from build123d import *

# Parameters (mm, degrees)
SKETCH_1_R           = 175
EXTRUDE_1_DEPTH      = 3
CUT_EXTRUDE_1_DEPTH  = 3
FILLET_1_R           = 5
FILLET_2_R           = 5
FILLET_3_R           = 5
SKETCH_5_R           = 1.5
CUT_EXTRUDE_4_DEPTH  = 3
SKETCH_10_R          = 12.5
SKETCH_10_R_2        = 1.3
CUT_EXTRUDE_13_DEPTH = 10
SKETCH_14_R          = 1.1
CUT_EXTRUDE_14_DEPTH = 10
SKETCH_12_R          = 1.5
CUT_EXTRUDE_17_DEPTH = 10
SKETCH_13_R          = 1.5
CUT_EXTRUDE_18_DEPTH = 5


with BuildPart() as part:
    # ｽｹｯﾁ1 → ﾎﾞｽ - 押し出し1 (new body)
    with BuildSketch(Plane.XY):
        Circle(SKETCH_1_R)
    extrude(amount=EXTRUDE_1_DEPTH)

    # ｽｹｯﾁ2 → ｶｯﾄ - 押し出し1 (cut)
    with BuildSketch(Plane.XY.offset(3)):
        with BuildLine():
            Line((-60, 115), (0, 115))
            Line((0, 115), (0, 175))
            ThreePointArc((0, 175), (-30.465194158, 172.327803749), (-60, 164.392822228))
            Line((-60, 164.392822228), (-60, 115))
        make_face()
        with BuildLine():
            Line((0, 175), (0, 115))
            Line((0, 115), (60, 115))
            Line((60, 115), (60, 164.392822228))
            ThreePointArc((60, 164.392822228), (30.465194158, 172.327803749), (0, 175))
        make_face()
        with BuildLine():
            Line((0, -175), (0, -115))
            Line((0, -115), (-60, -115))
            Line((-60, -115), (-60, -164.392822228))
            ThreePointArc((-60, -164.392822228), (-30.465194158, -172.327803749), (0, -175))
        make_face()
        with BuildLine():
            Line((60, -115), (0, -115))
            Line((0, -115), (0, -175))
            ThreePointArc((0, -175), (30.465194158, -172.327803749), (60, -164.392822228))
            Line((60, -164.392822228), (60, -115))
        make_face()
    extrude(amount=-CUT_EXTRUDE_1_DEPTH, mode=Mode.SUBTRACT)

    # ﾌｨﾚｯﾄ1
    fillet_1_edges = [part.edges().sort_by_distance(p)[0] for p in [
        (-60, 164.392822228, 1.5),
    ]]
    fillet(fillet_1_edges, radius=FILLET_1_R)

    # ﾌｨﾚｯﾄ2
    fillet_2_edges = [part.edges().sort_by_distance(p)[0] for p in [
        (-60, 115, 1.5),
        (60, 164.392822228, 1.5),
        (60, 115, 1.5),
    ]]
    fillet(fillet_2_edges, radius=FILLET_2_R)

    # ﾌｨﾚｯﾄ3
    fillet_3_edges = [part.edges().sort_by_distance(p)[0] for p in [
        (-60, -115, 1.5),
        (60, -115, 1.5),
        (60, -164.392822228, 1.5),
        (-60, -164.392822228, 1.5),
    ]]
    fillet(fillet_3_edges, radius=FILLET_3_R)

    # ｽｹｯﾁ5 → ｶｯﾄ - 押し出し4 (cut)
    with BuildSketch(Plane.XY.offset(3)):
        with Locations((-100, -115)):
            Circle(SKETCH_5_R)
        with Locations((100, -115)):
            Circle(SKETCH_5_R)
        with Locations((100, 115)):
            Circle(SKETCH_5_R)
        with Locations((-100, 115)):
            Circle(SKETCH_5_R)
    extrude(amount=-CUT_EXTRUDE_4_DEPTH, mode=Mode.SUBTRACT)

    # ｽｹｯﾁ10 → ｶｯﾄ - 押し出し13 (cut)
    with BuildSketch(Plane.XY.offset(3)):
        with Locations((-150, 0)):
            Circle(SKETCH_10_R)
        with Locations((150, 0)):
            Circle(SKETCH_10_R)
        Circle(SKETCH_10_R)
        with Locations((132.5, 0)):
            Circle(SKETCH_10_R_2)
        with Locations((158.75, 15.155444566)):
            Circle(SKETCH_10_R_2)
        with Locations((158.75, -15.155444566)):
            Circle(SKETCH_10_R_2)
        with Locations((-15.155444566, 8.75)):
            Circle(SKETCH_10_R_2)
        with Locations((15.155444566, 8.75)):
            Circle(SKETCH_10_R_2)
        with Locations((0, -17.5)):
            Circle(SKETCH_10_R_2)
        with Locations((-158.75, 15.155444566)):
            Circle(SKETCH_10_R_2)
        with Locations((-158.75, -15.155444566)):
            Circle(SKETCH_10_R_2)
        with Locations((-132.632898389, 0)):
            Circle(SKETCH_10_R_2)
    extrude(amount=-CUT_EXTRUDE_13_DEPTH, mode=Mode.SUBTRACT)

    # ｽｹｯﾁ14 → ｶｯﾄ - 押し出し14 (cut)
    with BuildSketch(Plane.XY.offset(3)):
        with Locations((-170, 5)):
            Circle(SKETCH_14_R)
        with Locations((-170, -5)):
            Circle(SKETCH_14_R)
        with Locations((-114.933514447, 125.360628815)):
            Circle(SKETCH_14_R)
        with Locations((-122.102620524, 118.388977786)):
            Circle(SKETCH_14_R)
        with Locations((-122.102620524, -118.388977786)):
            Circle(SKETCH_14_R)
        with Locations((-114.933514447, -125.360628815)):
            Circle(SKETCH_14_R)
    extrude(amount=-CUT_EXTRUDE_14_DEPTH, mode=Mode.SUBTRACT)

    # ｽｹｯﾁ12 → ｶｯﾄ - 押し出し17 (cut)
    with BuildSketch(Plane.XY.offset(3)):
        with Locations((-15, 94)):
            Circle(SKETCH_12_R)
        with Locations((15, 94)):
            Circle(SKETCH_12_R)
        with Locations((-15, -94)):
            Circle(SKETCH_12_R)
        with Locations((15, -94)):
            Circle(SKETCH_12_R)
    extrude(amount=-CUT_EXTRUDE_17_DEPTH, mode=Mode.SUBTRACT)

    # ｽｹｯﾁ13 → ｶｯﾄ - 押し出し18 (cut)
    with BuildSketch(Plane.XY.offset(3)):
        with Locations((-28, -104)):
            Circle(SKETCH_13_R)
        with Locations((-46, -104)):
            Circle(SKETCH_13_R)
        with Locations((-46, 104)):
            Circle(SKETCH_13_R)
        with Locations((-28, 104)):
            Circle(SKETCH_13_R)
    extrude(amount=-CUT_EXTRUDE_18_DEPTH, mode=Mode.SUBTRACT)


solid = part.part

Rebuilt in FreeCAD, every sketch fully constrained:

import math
import FreeCAD as App
import Part
import Sketcher

V = App.Vector
Q = App.Units.Quantity


def edges_at(feature, points):
    """Names of the edges that pass closest to the given points."""
    edges = feature.Shape.Edges
    near = lambda p: min(range(len(edges)), key=lambda i: edges[i].distToShape(Part.Vertex(*p))[0])
    return sorted({f"Edge{near(p) + 1}" for p in points})

doc = App.newDocument("Part")
body = doc.addObject("PartDesign::Body", "Body")

sketch1 = doc.addObject("Sketcher::SketchObject", "Sketch")
body.addObject(sketch1)
sketch1.AttachmentSupport = (doc.XY_Plane, [""])
sketch1.MapMode = "FlatFace"
sketch1.addGeometry(Part.Circle(V(0, 0, 0), V(0, 0, 1), 175), False)
sketch1.addConstraint([
    Sketcher.Constraint("Coincident", 0, 3, -1, 1),
    Sketcher.Constraint("Diameter", 0, Q("350 mm")),
])
pad1 = doc.addObject("PartDesign::Pad", "Pad")
body.addObject(pad1)
pad1.Profile = sketch1
pad1.Length = 3

sketch2 = doc.addObject("Sketcher::SketchObject", "Sketch001")
body.addObject(sketch2)
sketch2.AttachmentSupport = (doc.XY_Plane, [""])
sketch2.MapMode = "FlatFace"
sketch2.AttachmentOffset = App.Placement(V(0, 0, 3), App.Rotation())
sketch2.addGeometry([
    Part.LineSegment(V(-60, 115, 0), V(60, 115, 0)),
    Part.LineSegment(V(60, 115, 0), V(60, 164.392822, 0)),
    Part.ArcOfCircle(Part.Circle(V(0, 0, 0), V(0, 0, 1), 175), math.radians(69.948957), math.radians(90)),
    Part.ArcOfCircle(Part.Circle(V(0, 0, 0), V(0, 0, 1), 175), math.radians(90), math.radians(110.051043)),
    Part.LineSegment(V(-60, 164.392822, 0), V(-60, 115, 0)),
    Part.LineSegment(V(-60, -115, 0), V(-60, -164.392822, 0)),
    Part.ArcOfCircle(Part.Circle(V(0, 0, 0), V(0, 0, 1), 175), math.radians(-110.051043), math.radians(-90)),
    Part.ArcOfCircle(Part.Circle(V(0, 0, 0), V(0, 0, 1), 175), math.radians(-90), math.radians(-69.948957)),
    Part.LineSegment(V(60, -164.392822, 0), V(60, -115, 0)),
    Part.LineSegment(V(60, -115, 0), V(-60, -115, 0)),
], False)
sketch2.addConstraint([
    Sketcher.Constraint("Coincident", 0, 2, 1, 1),
    Sketcher.Constraint("Coincident", 1, 2, 2, 1),
    Sketcher.Constraint("Tangent", 2, 2, 3, 1),
    Sketcher.Constraint("Coincident", 3, 2, 4, 1),
    Sketcher.Constraint("Coincident", 4, 2, 0, 1),
    Sketcher.Constraint("Coincident", 5, 2, 6, 1),
    Sketcher.Constraint("Tangent", 6, 2, 7, 1),
    Sketcher.Constraint("Coincident", 7, 2, 8, 1),
    Sketcher.Constraint("Coincident", 8, 2, 9, 1),
    Sketcher.Constraint("Coincident", 9, 2, 5, 1),
    Sketcher.Constraint("Horizontal", 0),
    Sketcher.Constraint("Vertical", 1),
    Sketcher.Constraint("Vertical", 4),
    Sketcher.Constraint("Vertical", 5),
    Sketcher.Constraint("Vertical", 8),
    Sketcher.Constraint("Horizontal", 9),
    Sketcher.Constraint("Coincident", 2, 3, -1, 1),
    Sketcher.Constraint("Coincident", 6, 3, -1, 1),
    Sketcher.Constraint("Equal", 2, 3),
    Sketcher.Constraint("Equal", 3, 6),
    Sketcher.Constraint("Equal", 6, 7),
    Sketcher.Constraint("Symmetric", 4, 2, 8, 2, -1, 1),
    Sketcher.Constraint("PointOnObject", 2, 2, -2),
    Sketcher.Constraint("PointOnObject", 6, 2, -2),
    Sketcher.Constraint("Horizontal", 1, 2, 3, 2),
    Sketcher.Constraint("Horizontal", 5, 2, 7, 2),
    Sketcher.Constraint("Radius", 2, Q("175 mm")),
    Sketcher.Constraint("DistanceX", 0, 1, 0, 2, Q("120 mm")),
    Sketcher.Constraint("DistanceY", -1, 1, 0, 2, Q("115 mm")),
])
pocket1 = doc.addObject("PartDesign::Pocket", "Pocket")
body.addObject(pocket1)
pocket1.Profile = sketch2
pocket1.Length = 3
doc.recompute()

fillet = doc.addObject("PartDesign::Fillet", "Fillet")
body.addObject(fillet)
fillet.Base = (pocket1, edges_at(pocket1, [(-60, 164.393, 1.5)]))
fillet.Radius = 5
doc.recompute()

fillet2 = doc.addObject("PartDesign::Fillet", "Fillet001")
body.addObject(fillet2)
fillet2.Base = (fillet, edges_at(fillet, [(-60, 115, 1.5), (60, 164.393, 1.5), (60, 115, 1.5)]))
fillet2.Radius = 5
doc.recompute()

fillet3 = doc.addObject("PartDesign::Fillet", "Fillet002")
body.addObject(fillet3)
fillet3.Base = (fillet2, edges_at(fillet2, [
    (-60, -115, 1.5),
    (60, -115, 1.5),
    (60, -164.393, 1.5),
    (-60, -164.393, 1.5),
]))
fillet3.Radius = 5

sketch3 = doc.addObject("Sketcher::SketchObject", "Sketch002")
body.addObject(sketch3)
sketch3.AttachmentSupport = (doc.XY_Plane, [""])
sketch3.MapMode = "FlatFace"
sketch3.AttachmentOffset = App.Placement(V(0, 0, 3), App.Rotation())
sketch3.addGeometry([
    Part.Circle(V(-100, -115, 0), V(0, 0, 1), 1.5),
    Part.Circle(V(100, -115, 0), V(0, 0, 1), 1.5),
    Part.Circle(V(100, 115, 0), V(0, 0, 1), 1.5),
    Part.Circle(V(-100, 115, 0), V(0, 0, 1), 1.5),
], False)
sketch3.addConstraint([
    Sketcher.Constraint("Equal", 0, 1),
    Sketcher.Constraint("Equal", 1, 2),
    Sketcher.Constraint("Equal", 2, 3),
    Sketcher.Constraint("Symmetric", 0, 3, 2, 3, -1, 1),
    Sketcher.Constraint("Symmetric", 1, 3, 3, 3, -1, 1),
    Sketcher.Constraint("Symmetric", 0, 3, 1, 3, -2),
    Sketcher.Constraint("Diameter", 0, Q("3 mm")),
    Sketcher.Constraint("DistanceX", 0, 3, -1, 1, Q("100 mm")),
    Sketcher.Constraint("DistanceY", 0, 3, -1, 1, Q("115 mm")),
])
pocket2 = doc.addObject("PartDesign::Pocket", "Pocket001")
body.addObject(pocket2)
pocket2.Profile = sketch3
pocket2.Length = 3

sketch4 = doc.addObject("Sketcher::SketchObject", "Sketch003")
body.addObject(sketch4)
sketch4.AttachmentSupport = (doc.XY_Plane, [""])
sketch4.MapMode = "FlatFace"
sketch4.AttachmentOffset = App.Placement(V(0, 0, 3), App.Rotation())
sketch4.addGeometry([
    Part.Circle(V(-150, 0, 0), V(0, 0, 1), 12.5),
    Part.Circle(V(150, 0, 0), V(0, 0, 1), 12.5),
    Part.Circle(V(0, 0, 0), V(0, 0, 1), 12.5),
    Part.Circle(V(132.5, 0, 0), V(0, 0, 1), 1.3),
    Part.Circle(V(158.75, 15.155445, 0), V(0, 0, 1), 1.3),
    Part.Circle(V(158.75, -15.155445, 0), V(0, 0, 1), 1.3),
    Part.Circle(V(-15.155445, 8.75, 0), V(0, 0, 1), 1.3),
    Part.Circle(V(15.155445, 8.75, 0), V(0, 0, 1), 1.3),
    Part.Circle(V(0, -17.5, 0), V(0, 0, 1), 1.3),
    Part.Circle(V(-158.75, 15.155445, 0), V(0, 0, 1), 1.3),
    Part.Circle(V(-158.75, -15.155445, 0), V(0, 0, 1), 1.3),
    Part.Circle(V(-132.632898, 0, 0), V(0, 0, 1), 1.3),
], False)
sketch4.addConstraint([
    Sketcher.Constraint("Coincident", 2, 3, -1, 1),
    Sketcher.Constraint("Equal", 0, 1),
    Sketcher.Constraint("Equal", 1, 2),
    Sketcher.Constraint("Equal", 3, 4),
    Sketcher.Constraint("Equal", 4, 5),
    Sketcher.Constraint("Equal", 5, 6),
    Sketcher.Constraint("Equal", 6, 7),
    Sketcher.Constraint("Equal", 7, 8),
    Sketcher.Constraint("Equal", 8, 9),
    Sketcher.Constraint("Equal", 9, 10),
    Sketcher.Constraint("Equal", 10, 11),
    Sketcher.Constraint("Symmetric", 0, 3, 1, 3, -1, 1),
    Sketcher.Constraint("Symmetric", 5, 3, 9, 3, -1, 1),
    Sketcher.Constraint("Symmetric", 4, 3, 10, 3, -1, 1),
    Sketcher.Constraint("Symmetric", 6, 3, 7, 3, -2),
    Sketcher.Constraint("Symmetric", 4, 3, 9, 3, -2),
    Sketcher.Constraint("PointOnObject", 0, 3, -1),
    Sketcher.Constraint("PointOnObject", 3, 3, -1),
    Sketcher.Constraint("PointOnObject", 8, 3, -2),
    Sketcher.Constraint("PointOnObject", 11, 3, -1),
    Sketcher.Constraint("Diameter", 0, Q("25 mm")),
    Sketcher.Constraint("Diameter", 3, Q("2.6 mm")),
    Sketcher.Constraint("DistanceX", 0, 3, -1, 1, Q("150 mm")),
    Sketcher.Constraint("DistanceX", -1, 1, 3, 3, Q("132.5 mm")),
    Sketcher.Constraint("DistanceY", 8, 3, -1, 1, Q("17.5 mm")),
    Sketcher.Constraint("DistanceX", -1, 1, 4, 3, Q("158.75 mm")),
    Sketcher.Constraint("DistanceY", -1, 1, 6, 3, Q("8.75 mm")),
    Sketcher.Constraint("DistanceX", 11, 3, -1, 1, Q("132.632898 mm")),
    Sketcher.Constraint("DistanceY", 5, 3, 4, 3, Q("30.310889 mm")),
    Sketcher.Constraint("DistanceX", 6, 3, 7, 3, Q("30.310889 mm")),
])
pocket3 = doc.addObject("PartDesign::Pocket", "Pocket002")
body.addObject(pocket3)
pocket3.Profile = sketch4
pocket3.Length = 10

sketch5 = doc.addObject("Sketcher::SketchObject", "Sketch004")
body.addObject(sketch5)
sketch5.AttachmentSupport = (doc.XY_Plane, [""])
sketch5.MapMode = "FlatFace"
sketch5.AttachmentOffset = App.Placement(V(0, 0, 3), App.Rotation())
sketch5.addGeometry([
    Part.Circle(V(-170, 5, 0), V(0, 0, 1), 1.1),
    Part.Circle(V(-170, -5, 0), V(0, 0, 1), 1.1),
    Part.Circle(V(-114.933514, 125.360629, 0), V(0, 0, 1), 1.1),
    Part.Circle(V(-122.102621, 118.388978, 0), V(0, 0, 1), 1.1),
    Part.Circle(V(-122.102621, -118.388978, 0), V(0, 0, 1), 1.1),
    Part.Circle(V(-114.933514, -125.360629, 0), V(0, 0, 1), 1.1),
], False)
sketch5.addConstraint([
    Sketcher.Constraint("Equal", 0, 1),
    Sketcher.Constraint("Equal", 1, 2),
    Sketcher.Constraint("Equal", 2, 3),
    Sketcher.Constraint("Equal", 3, 4),
    Sketcher.Constraint("Equal", 4, 5),
    Sketcher.Constraint("Symmetric", 0, 3, 1, 3, -1),
    Sketcher.Constraint("Symmetric", 3, 3, 4, 3, -1),
    Sketcher.Constraint("Symmetric", 2, 3, 5, 3, -1),
    Sketcher.Constraint("Diameter", 0, Q("2.2 mm")),
    Sketcher.Constraint("DistanceX", 0, 3, -1, 1, Q("170 mm")),
    Sketcher.Constraint("DistanceY", -1, 1, 0, 3, Q("5 mm")),
    Sketcher.Constraint("DistanceY", -1, 1, 2, 3, Q("125.360629 mm")),
    Sketcher.Constraint("DistanceX", 3, 3, -1, 1, Q("122.102621 mm")),
    Sketcher.Constraint("DistanceY", 3, 3, 2, 3, Q("6.971651 mm")),
    Sketcher.Constraint("DistanceX", 2, 3, -1, 1, Q("114.933514 mm")),
])
pocket4 = doc.addObject("PartDesign::Pocket", "Pocket003")
body.addObject(pocket4)
pocket4.Profile = sketch5
pocket4.Length = 10

sketch6 = doc.addObject("Sketcher::SketchObject", "Sketch005")
body.addObject(sketch6)
sketch6.AttachmentSupport = (doc.XY_Plane, [""])
sketch6.MapMode = "FlatFace"
sketch6.AttachmentOffset = App.Placement(V(0, 0, 3), App.Rotation())
sketch6.addGeometry([
    Part.Circle(V(-15, 94, 0), V(0, 0, 1), 1.5),
    Part.Circle(V(15, 94, 0), V(0, 0, 1), 1.5),
    Part.Circle(V(-15, -94, 0), V(0, 0, 1), 1.5),
    Part.Circle(V(15, -94, 0), V(0, 0, 1), 1.5),
], False)
sketch6.addConstraint([
    Sketcher.Constraint("Equal", 0, 1),
    Sketcher.Constraint("Equal", 1, 2),
    Sketcher.Constraint("Equal", 2, 3),
    Sketcher.Constraint("Symmetric", 1, 3, 2, 3, -1, 1),
    Sketcher.Constraint("Symmetric", 0, 3, 3, 3, -1, 1),
    Sketcher.Constraint("Symmetric", 0, 3, 1, 3, -2),
    Sketcher.Constraint("Diameter", 0, Q("3 mm")),
    Sketcher.Constraint("DistanceX", 0, 3, -1, 1, Q("15 mm")),
    Sketcher.Constraint("DistanceY", -1, 1, 0, 3, Q("94 mm")),
])
pocket5 = doc.addObject("PartDesign::Pocket", "Pocket004")
body.addObject(pocket5)
pocket5.Profile = sketch6
pocket5.Length = 10

sketch7 = doc.addObject("Sketcher::SketchObject", "Sketch006")
body.addObject(sketch7)
sketch7.AttachmentSupport = (doc.XY_Plane, [""])
sketch7.MapMode = "FlatFace"
sketch7.AttachmentOffset = App.Placement(V(0, 0, 3), App.Rotation())
sketch7.addGeometry([
    Part.Circle(V(-28, -104, 0), V(0, 0, 1), 1.5),
    Part.Circle(V(-46, -104, 0), V(0, 0, 1), 1.5),
    Part.Circle(V(-46, 104, 0), V(0, 0, 1), 1.5),
    Part.Circle(V(-28, 104, 0), V(0, 0, 1), 1.5),
], False)
sketch7.addConstraint([
    Sketcher.Constraint("Equal", 0, 1),
    Sketcher.Constraint("Equal", 1, 2),
    Sketcher.Constraint("Equal", 2, 3),
    Sketcher.Constraint("Symmetric", 1, 3, 2, 3, -1),
    Sketcher.Constraint("Symmetric", 0, 3, 3, 3, -1),
    Sketcher.Constraint("Horizontal", 0, 3, 1, 3),
    Sketcher.Constraint("Diameter", 0, Q("3 mm")),
    Sketcher.Constraint("DistanceX", 0, 3, -1, 1, Q("28 mm")),
    Sketcher.Constraint("DistanceY", 0, 3, -1, 1, Q("104 mm")),
    Sketcher.Constraint("DistanceX", 1, 3, -1, 1, Q("46 mm")),
])
pocket6 = doc.addObject("PartDesign::Pocket", "Pocket005")
body.addObject(pocket6)
pocket6.Profile = sketch7
pocket6.Length = 5

doc.recompute()
